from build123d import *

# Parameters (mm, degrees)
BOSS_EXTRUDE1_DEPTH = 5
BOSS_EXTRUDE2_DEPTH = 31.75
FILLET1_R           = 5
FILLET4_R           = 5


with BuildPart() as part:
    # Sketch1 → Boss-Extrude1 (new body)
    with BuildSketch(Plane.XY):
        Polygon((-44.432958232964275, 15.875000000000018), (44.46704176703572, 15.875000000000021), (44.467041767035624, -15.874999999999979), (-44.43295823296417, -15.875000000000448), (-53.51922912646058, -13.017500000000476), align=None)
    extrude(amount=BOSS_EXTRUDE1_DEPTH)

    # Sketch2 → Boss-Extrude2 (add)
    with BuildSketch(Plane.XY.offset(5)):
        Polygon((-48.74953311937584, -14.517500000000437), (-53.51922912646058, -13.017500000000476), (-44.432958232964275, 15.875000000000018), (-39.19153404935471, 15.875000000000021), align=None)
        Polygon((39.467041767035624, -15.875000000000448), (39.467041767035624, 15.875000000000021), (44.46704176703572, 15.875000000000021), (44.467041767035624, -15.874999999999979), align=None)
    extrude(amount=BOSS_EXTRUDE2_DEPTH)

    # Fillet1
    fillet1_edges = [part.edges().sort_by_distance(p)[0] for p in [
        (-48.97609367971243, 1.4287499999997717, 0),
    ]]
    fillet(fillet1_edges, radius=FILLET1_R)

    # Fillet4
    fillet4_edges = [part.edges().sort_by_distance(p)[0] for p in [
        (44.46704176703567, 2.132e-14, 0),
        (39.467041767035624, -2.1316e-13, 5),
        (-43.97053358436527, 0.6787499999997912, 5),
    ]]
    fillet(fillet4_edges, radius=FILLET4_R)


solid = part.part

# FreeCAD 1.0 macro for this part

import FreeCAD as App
import Part
import Sketcher
Q = App.Units.Quantity


def edges_at(feature, points):
    """Names of the edges that pass closest to the given points."""
    edges = feature.Shape.Edges
    near = lambda p: min(range(len(edges)), key=lambda i: edges[i].distToShape(Part.Vertex(*p))[0])
    return sorted({f"Edge{near(p) + 1}" for p in points})


def add_polygon(sketch, points):
    """Adds a closed chain of lines whose ends are joined by coincident constraints."""
    first, n = sketch.GeometryCount, len(points)
    for a, b in zip(points, points[1:] + points[:1]):
        sketch.addGeometry(Part.LineSegment(App.Vector(*a, 0), App.Vector(*b, 0)), False)
    for i in range(n):
        sketch.addConstraint(Sketcher.Constraint("Coincident", first + i, 2, first + (i + 1) % n, 1))

doc = App.newDocument("Part")
params = doc.addObject("Spreadsheet::Sheet", "Params")
for row, (alias, value) in enumerate([
    ("sketch1_width", "3.5 in"),
    ("sketch1_height", "1.25 in"),
    ("sketch1_length", "0.375 in"),
    ("pad1_length", "5 mm"),
    ("sketch2_height", "1.25 in"),
    ("pad2_length", "1.25 in"),
    ("fillet_radius", "5 mm"),
    ("fillet2_radius", "5 mm"),
], start=1):
    params.set(f"A{row}", alias)
    params.set(f"B{row}", "=" + value)
    params.setAlias(f"B{row}", alias)

body = doc.addObject("PartDesign::Body", "Body")

# Sketch on XY plane
sketch1 = doc.addObject("Sketcher::SketchObject", "Sketch")
body.addObject(sketch1)
sketch1.AttachmentSupport = (doc.XY_Plane, [""])
sketch1.MapMode = "FlatFace"
add_polygon(sketch1, [(44, 16), (-44, 16), (-54, -13), (-44, -16), (44, -16)])  # lines 0-4
sketch1.addConstraint(Sketcher.Constraint("Horizontal", 0))
sketch1.addConstraint(Sketcher.Constraint("Horizontal", 3))
sketch1.addConstraint(Sketcher.Constraint("Vertical", 4))
sketch1.addConstraint(Sketcher.Constraint("Symmetric", 0, 2, 2, 2, -1))
sketch1.addConstraint(Sketcher.Constraint("Perpendicular", 1, 2))
sketch1.addConstraint(Sketcher.Constraint("DistanceX", 0, 2, 0, 1, Q("3.5 in")))
sketch1.addConstraint(Sketcher.Constraint("DistanceY", 4, 1, 4, 2, Q("1.25 in")))
sketch1.addConstraint(Sketcher.Constraint("Distance", 2, Q("0.375 in")))
sketch1.addConstraint(Sketcher.Constraint("DistanceX", 0, 2, -1, 1, 44.432958))
sketch1.setExpression("Constraints[10]", "Params.sketch1_width")
sketch1.setExpression("Constraints[11]", "Params.sketch1_height")
sketch1.setExpression("Constraints[12]", "Params.sketch1_length")
pad1 = doc.addObject("PartDesign::Pad", "Pad")
body.addObject(pad1)
pad1.Profile = sketch1
pad1.setExpression("Length", "Params.pad1_length")

# Sketch on XY plane
sketch2 = doc.addObject("Sketcher::SketchObject", "Sketch001")
body.addObject(sketch2)
sketch2.AttachmentSupport = (doc.XY_Plane, [""])
sketch2.MapMode = "FlatFace"
sketch2.AttachmentOffset = App.Placement(App.Vector(0, 0, 5), App.Rotation())
add_polygon(sketch2, [(-53.5, -13), (-48.7, -14.5), (-39.2, 15.9), (-44.4, 15.9)])  # lines 0-3
add_polygon(sketch2, [(39.5, 15.9), (39.5, -15.9), (44.5, -15.9), (44.5, 15.9)])  # lines 4-7
sketch2.addConstraint(Sketcher.Constraint("Horizontal", 2))
sketch2.addConstraint(Sketcher.Constraint("Vertical", 4))
sketch2.addConstraint(Sketcher.Constraint("Horizontal", 5))
sketch2.addConstraint(Sketcher.Constraint("Vertical", 6))
sketch2.addConstraint(Sketcher.Constraint("Horizontal", 7))
sketch2.addConstraint(Sketcher.Constraint("Perpendicular", 0, 1))
sketch2.addConstraint(Sketcher.Constraint("Parallel", 1, 3))
sketch2.addConstraint(Sketcher.Constraint("Horizontal", 2, 2, 6, 2))
sketch2.addConstraint(Sketcher.Constraint("DistanceY", 4, 2, 4, 1, Q("1.25 in")))
sketch2.addConstraint(Sketcher.Constraint("DistanceX", 2, 2, 5, 2, Q("3.5 in")))
sketch2.addConstraint(Sketcher.Constraint("DistanceY", -1, 1, 1, 2, Q("0.625 in")))
sketch2.addConstraint(Sketcher.Constraint("DistanceX", 5, 1, 5, 2, 5.0))
sketch2.addConstraint(Sketcher.Constraint("DistanceY", 3, 2, -1, 1, Q("0.5125 in")))
sketch2.addConstraint(Sketcher.Constraint("Distance", 0, 5.0))
sketch2.addConstraint(Sketcher.Constraint("DistanceY", 0, 2, -1, 1, 14.5175))
sketch2.addConstraint(Sketcher.Constraint("DistanceX", 2, 2, -1, 1, 44.432958))
sketch2.setExpression("Constraints[16]", "Params.sketch2_height")
pad2 = doc.addObject("PartDesign::Pad", "Pad001")
body.addObject(pad2)
pad2.Profile = sketch2
pad2.setExpression("Length", "Params.pad2_length")
doc.recompute()

fillet = doc.addObject("PartDesign::Fillet", "Fillet")
body.addObject(fillet)
fillet.Base = (pad2, edges_at(pad2, [(-48.976, 1.429, 0)]))
fillet.setExpression("Radius", "Params.fillet_radius")
doc.recompute()

fillet2 = doc.addObject("PartDesign::Fillet", "Fillet001")
body.addObject(fillet2)
fillet2.Base = (fillet, edges_at(fillet, [(44.467, 0, 0), (39.467, 0, 5), (-43.971, 0.679, 5)]))
fillet2.setExpression("Radius", "Params.fillet2_radius")

doc.recompute()
